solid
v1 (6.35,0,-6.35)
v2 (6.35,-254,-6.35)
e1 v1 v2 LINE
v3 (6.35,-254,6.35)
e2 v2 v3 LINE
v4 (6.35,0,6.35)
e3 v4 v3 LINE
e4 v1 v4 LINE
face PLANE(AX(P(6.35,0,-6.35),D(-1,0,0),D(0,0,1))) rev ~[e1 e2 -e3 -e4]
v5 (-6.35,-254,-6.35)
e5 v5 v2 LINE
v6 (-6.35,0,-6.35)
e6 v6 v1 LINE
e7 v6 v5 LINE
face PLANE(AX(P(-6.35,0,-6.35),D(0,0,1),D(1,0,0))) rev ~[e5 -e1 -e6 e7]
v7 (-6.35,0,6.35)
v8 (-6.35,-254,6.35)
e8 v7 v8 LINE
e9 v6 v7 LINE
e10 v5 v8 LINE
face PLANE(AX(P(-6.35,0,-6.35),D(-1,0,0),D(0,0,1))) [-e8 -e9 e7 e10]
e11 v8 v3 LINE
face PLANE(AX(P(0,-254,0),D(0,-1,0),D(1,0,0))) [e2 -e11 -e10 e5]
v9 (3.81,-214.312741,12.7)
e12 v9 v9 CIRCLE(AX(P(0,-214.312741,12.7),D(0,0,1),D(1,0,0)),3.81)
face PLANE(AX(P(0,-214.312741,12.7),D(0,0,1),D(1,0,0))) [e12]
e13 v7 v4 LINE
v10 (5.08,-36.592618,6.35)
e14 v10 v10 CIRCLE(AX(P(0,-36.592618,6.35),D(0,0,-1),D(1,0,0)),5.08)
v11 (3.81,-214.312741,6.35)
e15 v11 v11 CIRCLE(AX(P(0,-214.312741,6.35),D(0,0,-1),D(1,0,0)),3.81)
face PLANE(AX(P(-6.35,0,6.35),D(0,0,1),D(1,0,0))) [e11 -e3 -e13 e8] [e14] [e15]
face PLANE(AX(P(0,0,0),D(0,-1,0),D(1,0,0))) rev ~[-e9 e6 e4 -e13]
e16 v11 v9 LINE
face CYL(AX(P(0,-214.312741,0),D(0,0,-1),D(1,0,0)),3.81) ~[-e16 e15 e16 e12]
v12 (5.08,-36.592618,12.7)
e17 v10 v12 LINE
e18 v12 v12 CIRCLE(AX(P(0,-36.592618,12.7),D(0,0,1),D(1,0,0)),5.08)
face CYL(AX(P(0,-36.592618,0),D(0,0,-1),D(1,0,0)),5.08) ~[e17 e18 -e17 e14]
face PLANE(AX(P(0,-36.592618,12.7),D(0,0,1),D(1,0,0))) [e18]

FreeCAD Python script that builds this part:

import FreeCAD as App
import Part
import Sketcher

V = App.Vector
Q = App.Units.Quantity

doc = App.newDocument("Part")
body = doc.addObject("PartDesign::Body", "Body")

# Sketch on XZ plane
sketch1 = body.newObject("Sketcher::SketchObject", "Sketch")
sketch1.AttachmentSupport = (doc.getObject("XZ_Plane"), [""])
sketch1.MapMode = "FlatFace"
sketch1.addGeometry([
    Part.LineSegment(V(-6, 6, 0), V(-6, -6, 0)),
    Part.LineSegment(V(-6, -6, 0), V(6, -6, 0)),
    Part.LineSegment(V(6, -6, 0), V(6, 6, 0)),
    Part.LineSegment(V(6, 6, 0), V(-6, 6, 0)),
], False)
sketch1.addConstraint([
    Sketcher.Constraint("Coincident", 0, 2, 1, 1),
    Sketcher.Constraint("Coincident", 1, 2, 2, 1),
    Sketcher.Constraint("Coincident", 2, 2, 3, 1),
    Sketcher.Constraint("Coincident", 3, 2, 0, 1),
    Sketcher.Constraint("Vertical", 0),
    Sketcher.Constraint("Horizontal", 1),
    Sketcher.Constraint("Vertical", 2),
    Sketcher.Constraint("Horizontal", 3),
    Sketcher.Constraint("Symmetric", 0, 2, 2, 2, -1, 1),
    Sketcher.Constraint("Equal", 3, 0),
    Sketcher.Constraint("DistanceX", 1, 1, 1, 2, Q("0.5 in")),
])
pad1 = body.newObject("PartDesign::Pad", "Pad")
pad1.Profile = sketch1
pad1.Length = Q("10 in")

# Sketch on XY plane
sketch2 = body.newObject("Sketcher::SketchObject", "Sketch001")
sketch2.AttachmentSupport = (doc.getObject("XY_Plane"), [""])
sketch2.MapMode = "FlatFace"
sketch2.addGeometry([
    Part.Circle(V(0, -36.6, 0), V(0, 0, 1), 5.1),
    Part.Circle(V(0, -214.3, 0), V(0, 0, 1), 3.8),
], False)
sketch2.addConstraint([
    Sketcher.Constraint("PointOnObject", 0, 3, -2),
    Sketcher.Constraint("PointOnObject", 1, 3, -2),
    Sketcher.Constraint("Diameter", 0, Q("0.4 in")),
    Sketcher.Constraint("Diameter", 1, Q("0.3 in")),
    Sketcher.Constraint("DistanceY", 1, 3, -1, 1, 214.312741),
    Sketcher.Constraint("DistanceY", 0, 3, -1, 1, 36.592618),
])
pad2 = body.newObject("PartDesign::Pad", "Pad001")
pad2.Profile = sketch2
pad2.Length = Q("0.5 in")

doc.recompute()
